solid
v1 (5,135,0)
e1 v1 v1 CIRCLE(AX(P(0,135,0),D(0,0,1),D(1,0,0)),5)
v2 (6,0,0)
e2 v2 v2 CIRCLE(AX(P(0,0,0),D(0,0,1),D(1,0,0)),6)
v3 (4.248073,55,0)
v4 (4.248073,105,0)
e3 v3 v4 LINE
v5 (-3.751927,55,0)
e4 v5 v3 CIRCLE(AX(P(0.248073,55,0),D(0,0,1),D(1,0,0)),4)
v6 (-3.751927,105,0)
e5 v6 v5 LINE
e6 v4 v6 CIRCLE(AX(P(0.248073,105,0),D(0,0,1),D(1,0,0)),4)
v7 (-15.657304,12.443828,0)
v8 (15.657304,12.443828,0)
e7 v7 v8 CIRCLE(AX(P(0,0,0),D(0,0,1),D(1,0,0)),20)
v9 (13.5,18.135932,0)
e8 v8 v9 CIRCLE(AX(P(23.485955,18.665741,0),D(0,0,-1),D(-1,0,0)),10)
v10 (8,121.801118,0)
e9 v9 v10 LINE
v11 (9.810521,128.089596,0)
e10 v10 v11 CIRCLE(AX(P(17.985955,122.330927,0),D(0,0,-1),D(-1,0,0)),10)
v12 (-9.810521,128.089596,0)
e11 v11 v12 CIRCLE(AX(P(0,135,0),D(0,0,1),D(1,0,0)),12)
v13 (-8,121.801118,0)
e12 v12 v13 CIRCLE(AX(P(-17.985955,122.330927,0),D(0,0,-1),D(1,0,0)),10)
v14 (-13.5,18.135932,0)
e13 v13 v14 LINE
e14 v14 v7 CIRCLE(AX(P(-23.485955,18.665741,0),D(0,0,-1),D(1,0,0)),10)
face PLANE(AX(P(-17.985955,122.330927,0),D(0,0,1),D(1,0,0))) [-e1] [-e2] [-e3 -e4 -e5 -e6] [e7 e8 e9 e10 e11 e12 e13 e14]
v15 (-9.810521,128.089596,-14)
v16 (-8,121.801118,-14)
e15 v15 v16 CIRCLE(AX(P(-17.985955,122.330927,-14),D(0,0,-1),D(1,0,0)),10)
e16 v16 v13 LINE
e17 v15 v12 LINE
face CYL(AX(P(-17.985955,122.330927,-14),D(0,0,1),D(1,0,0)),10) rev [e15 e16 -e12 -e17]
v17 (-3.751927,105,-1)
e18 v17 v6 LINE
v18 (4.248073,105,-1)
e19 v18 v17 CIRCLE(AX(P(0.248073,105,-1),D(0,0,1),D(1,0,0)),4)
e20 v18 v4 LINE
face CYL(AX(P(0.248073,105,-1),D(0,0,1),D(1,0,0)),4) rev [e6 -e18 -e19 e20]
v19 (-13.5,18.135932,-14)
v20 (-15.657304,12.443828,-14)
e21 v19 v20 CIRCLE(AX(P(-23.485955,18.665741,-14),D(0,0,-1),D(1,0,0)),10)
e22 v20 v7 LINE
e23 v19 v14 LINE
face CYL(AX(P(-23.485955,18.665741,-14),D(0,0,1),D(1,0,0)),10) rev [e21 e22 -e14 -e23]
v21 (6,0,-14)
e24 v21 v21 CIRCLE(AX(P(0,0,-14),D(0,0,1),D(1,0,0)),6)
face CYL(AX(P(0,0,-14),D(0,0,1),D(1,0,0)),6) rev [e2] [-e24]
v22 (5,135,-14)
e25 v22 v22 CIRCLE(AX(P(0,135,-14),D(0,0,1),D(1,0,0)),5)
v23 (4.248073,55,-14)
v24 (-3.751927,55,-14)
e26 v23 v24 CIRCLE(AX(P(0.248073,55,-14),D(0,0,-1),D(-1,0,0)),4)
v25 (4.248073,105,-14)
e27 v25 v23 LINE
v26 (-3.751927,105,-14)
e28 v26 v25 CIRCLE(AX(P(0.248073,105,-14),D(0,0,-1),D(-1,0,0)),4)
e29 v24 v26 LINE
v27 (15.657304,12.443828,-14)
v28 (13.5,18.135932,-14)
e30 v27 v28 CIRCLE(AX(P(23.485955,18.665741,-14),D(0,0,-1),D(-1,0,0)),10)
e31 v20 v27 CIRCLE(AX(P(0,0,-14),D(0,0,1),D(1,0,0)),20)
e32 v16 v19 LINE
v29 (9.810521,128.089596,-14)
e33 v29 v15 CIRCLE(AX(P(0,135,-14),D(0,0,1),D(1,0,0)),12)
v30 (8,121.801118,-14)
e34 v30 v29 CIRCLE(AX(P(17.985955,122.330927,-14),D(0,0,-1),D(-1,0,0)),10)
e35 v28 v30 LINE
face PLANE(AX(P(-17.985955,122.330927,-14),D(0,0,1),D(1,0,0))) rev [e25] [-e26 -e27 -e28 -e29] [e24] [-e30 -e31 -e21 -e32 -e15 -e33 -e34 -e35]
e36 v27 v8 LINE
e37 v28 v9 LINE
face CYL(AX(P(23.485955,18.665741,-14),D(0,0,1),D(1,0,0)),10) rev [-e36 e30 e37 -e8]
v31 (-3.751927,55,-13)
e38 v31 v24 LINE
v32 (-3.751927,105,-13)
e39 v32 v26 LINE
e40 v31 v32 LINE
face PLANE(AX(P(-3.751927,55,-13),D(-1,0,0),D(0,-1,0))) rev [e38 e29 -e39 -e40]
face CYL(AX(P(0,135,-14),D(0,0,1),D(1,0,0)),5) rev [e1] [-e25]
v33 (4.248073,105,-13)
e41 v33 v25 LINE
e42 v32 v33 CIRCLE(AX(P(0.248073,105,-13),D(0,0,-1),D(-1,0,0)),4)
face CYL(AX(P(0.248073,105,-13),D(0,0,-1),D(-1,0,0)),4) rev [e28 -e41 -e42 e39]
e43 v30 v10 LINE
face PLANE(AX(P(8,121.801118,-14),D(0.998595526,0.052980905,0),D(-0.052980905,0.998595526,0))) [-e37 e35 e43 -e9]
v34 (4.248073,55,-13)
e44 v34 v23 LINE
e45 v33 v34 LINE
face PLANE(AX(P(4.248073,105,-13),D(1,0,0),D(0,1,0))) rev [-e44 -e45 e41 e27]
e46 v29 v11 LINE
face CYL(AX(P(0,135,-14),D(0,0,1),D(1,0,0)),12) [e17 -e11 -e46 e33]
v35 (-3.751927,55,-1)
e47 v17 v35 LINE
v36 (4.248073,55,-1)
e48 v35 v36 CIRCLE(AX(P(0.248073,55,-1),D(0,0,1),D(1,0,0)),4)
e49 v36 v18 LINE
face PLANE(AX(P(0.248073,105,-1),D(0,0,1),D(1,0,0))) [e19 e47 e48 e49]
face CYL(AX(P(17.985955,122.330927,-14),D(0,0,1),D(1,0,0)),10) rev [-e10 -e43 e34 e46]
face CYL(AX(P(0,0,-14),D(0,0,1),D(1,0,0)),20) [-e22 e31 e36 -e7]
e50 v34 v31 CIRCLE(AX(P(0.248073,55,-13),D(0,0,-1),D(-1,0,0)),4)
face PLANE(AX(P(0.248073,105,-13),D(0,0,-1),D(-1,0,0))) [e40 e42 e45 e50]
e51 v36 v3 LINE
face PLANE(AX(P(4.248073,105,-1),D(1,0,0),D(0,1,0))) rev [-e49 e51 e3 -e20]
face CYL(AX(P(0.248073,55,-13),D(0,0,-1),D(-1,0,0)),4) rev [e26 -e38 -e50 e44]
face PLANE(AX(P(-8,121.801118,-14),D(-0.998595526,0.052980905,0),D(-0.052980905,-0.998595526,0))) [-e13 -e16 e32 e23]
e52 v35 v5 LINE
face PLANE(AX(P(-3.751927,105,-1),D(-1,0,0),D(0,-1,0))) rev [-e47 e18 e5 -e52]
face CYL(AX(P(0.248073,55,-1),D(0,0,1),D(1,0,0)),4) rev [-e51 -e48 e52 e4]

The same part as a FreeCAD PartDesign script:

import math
import FreeCAD as App
import Part
import Sketcher
from FreeCAD import Vector

doc = App.newDocument("Part")
body = doc.addObject("PartDesign::Body", "Body")

# Sketch on XY plane
sketch1 = body.newObject("Sketcher::SketchObject", "Sketch")
sketch1.AttachmentSupport = (doc.getObject("XY_Plane"), [""])
sketch1.MapMode = "FlatFace"
sketch1.addGeometry([
    Part.LineSegment(Vector(-8, 122, 0), Vector(-14, 18, 0)),  # 0
    Part.ArcOfCircle(Part.Circle(Vector(-23, 19, 0), Vector(0, 0, 1), 10), math.radians(-38), math.radians(-3)),  # 1
    Part.ArcOfCircle(Part.Circle(Vector(0, 0, 0), Vector(0, 0, 1), 20), math.radians(142), math.radians(398)),  # 2
    Part.ArcOfCircle(Part.Circle(Vector(23, 19, 0), Vector(0, 0, 1), 10), math.radians(-177), math.radians(-142)),  # 3
    Part.LineSegment(Vector(14, 18, 0), Vector(8, 122, 0)),  # 4
    Part.ArcOfCircle(Part.Circle(Vector(18, 122, 0), Vector(0, 0, 1), 10), math.radians(145), math.radians(183)),  # 5
    Part.ArcOfCircle(Part.Circle(Vector(0, 135, 0), Vector(0, 0, 1), 12), math.radians(-35), math.radians(215)),  # 6
    Part.ArcOfCircle(Part.Circle(Vector(-18, 122, 0), Vector(0, 0, 1), 10), math.radians(-3), math.radians(35)),  # 7
    Part.Circle(Vector(0, 0, 0), Vector(0, 0, 1), 6),  # 8
    Part.Circle(Vector(0, 135, 0), Vector(0, 0, 1), 5),  # 9
], False)
sketch1.addConstraint([
    Sketcher.Constraint("Tangent", 0, 2, 1, 2),
    Sketcher.Constraint("Tangent", 1, 1, 2, 1),
    Sketcher.Constraint("Tangent", 2, 2, 3, 2),
    Sketcher.Constraint("Tangent", 3, 1, 4, 1),
    Sketcher.Constraint("Tangent", 4, 2, 5, 2),
    Sketcher.Constraint("Tangent", 5, 1, 6, 1),
    Sketcher.Constraint("Tangent", 6, 2, 7, 2),
    Sketcher.Constraint("Tangent", 7, 1, 0, 1),
    Sketcher.Constraint("Coincident", 2, 3, -1, 1),
    Sketcher.Constraint("Coincident", 8, 3, -1, 1),
    Sketcher.Constraint("Coincident", 9, 3, 6, 3),
    Sketcher.Constraint("Equal", 1, 3),
    Sketcher.Constraint("Equal", 3, 5),
    Sketcher.Constraint("Equal", 5, 7),
    Sketcher.Constraint("Symmetric", 5, 3, 7, 3, -2),
    Sketcher.Constraint("Horizontal", 1, 3, 3, 3),
    Sketcher.Constraint("Diameter", 8, 12.0),
    Sketcher.Constraint("Diameter", 9, 10.0),
    Sketcher.Constraint("Radius", 1, 10.0),
    Sketcher.Constraint("Radius", 2, 20.0),
    Sketcher.Constraint("Radius", 6, 12.0),
    Sketcher.Constraint("DistanceY", -1, 1, 6, 3, 135.0),
    Sketcher.Constraint("DistanceX", -1, 1, 4, 2, 8.0),
    Sketcher.Constraint("DistanceX", 0, 2, 3, 1, 27.0),
])
pad1 = body.newObject("PartDesign::Pad", "Pad")
pad1.Profile = sketch1
pad1.Length = 14
pad1.Reversed = True

# Sketch on XY plane
sketch2 = body.newObject("Sketcher::SketchObject", "Sketch001")
sketch2.AttachmentSupport = (doc.getObject("XY_Plane"), [""])
sketch2.MapMode = "FlatFace"
sketch2.addGeometry([
    Part.LineSegment(Vector(-3.8, 105, 0), Vector(-3.8, 55, 0)),
    Part.ArcOfCircle(Part.Circle(Vector(0.2, 55, 0), Vector(0, 0, 1), 4), math.radians(180), math.radians(360)),
    Part.LineSegment(Vector(4.2, 55, 0), Vector(4.2, 105, 0)),
    Part.ArcOfCircle(Part.Circle(Vector(0.2, 105, 0), Vector(0, 0, 1), 4), math.radians(0), math.radians(180)),
], False)
sketch2.addConstraint([
    Sketcher.Constraint("Tangent", 0, 2, 1, 1),
    Sketcher.Constraint("Tangent", 1, 2, 2, 1),
    Sketcher.Constraint("Tangent", 2, 2, 3, 1),
    Sketcher.Constraint("Tangent", 3, 2, 0, 1),
    Sketcher.Constraint("Vertical", 0),
    Sketcher.Constraint("Vertical", 2),
    Sketcher.Constraint("Radius", 1, 4.0),
    Sketcher.Constraint("DistanceY", 0, 2, 0, 1, 50.0),
    Sketcher.Constraint("DistanceY", -1, 1, 1, 3, 55.0),
    Sketcher.Constraint("DistanceX", -1, 1, 1, 3, 0.248073),
])
pocket1 = body.newObject("PartDesign::Pocket", "Pocket")
pocket1.Profile = sketch2
pocket1.Length = 1

# Sketch on XY plane
sketch3 = body.newObject("Sketcher::SketchObject", "Sketch002")
sketch3.AttachmentSupport = (doc.getObject("XY_Plane"), [""])
sketch3.MapMode = "FlatFace"
sketch3.AttachmentOffset = App.Placement(Vector(0, 0, -13), App.Rotation())
sketch3.addGeometry([
    Part.LineSegment(Vector(-3.8, 55, 0), Vector(-3.8, 105, 0)),
    Part.ArcOfCircle(Part.Circle(Vector(0.2, 105, 0), Vector(0, 0, 1), 4), math.radians(0), math.radians(180)),
    Part.LineSegment(Vector(4.2, 105, 0), Vector(4.2, 55, 0)),
    Part.ArcOfCircle(Part.Circle(Vector(0.2, 55, 0), Vector(0, 0, 1), 4), math.radians(180), math.radians(360)),
], False)
sketch3.addConstraint([
    Sketcher.Constraint("Tangent", 0, 2, 1, 2),
    Sketcher.Constraint("Tangent", 1, 1, 2, 1),
    Sketcher.Constraint("Tangent", 2, 2, 3, 2),
    Sketcher.Constraint("Tangent", 3, 1, 0, 1),
    Sketcher.Constraint("Vertical", 0),
    Sketcher.Constraint("Vertical", 2),
    Sketcher.Constraint("Radius", 1, 4.0),
    Sketcher.Constraint("DistanceY", 0, 1, 0, 2, 50.0),
    Sketcher.Constraint("DistanceY", -1, 1, 1, 3, 105.0),
    Sketcher.Constraint("DistanceX", -1, 1, 1, 3, 0.248073),
])
pocket2 = body.newObject("PartDesign::Pocket", "Pocket001")
pocket2.Profile = sketch3
pocket2.Length = 1

doc.recompute()
